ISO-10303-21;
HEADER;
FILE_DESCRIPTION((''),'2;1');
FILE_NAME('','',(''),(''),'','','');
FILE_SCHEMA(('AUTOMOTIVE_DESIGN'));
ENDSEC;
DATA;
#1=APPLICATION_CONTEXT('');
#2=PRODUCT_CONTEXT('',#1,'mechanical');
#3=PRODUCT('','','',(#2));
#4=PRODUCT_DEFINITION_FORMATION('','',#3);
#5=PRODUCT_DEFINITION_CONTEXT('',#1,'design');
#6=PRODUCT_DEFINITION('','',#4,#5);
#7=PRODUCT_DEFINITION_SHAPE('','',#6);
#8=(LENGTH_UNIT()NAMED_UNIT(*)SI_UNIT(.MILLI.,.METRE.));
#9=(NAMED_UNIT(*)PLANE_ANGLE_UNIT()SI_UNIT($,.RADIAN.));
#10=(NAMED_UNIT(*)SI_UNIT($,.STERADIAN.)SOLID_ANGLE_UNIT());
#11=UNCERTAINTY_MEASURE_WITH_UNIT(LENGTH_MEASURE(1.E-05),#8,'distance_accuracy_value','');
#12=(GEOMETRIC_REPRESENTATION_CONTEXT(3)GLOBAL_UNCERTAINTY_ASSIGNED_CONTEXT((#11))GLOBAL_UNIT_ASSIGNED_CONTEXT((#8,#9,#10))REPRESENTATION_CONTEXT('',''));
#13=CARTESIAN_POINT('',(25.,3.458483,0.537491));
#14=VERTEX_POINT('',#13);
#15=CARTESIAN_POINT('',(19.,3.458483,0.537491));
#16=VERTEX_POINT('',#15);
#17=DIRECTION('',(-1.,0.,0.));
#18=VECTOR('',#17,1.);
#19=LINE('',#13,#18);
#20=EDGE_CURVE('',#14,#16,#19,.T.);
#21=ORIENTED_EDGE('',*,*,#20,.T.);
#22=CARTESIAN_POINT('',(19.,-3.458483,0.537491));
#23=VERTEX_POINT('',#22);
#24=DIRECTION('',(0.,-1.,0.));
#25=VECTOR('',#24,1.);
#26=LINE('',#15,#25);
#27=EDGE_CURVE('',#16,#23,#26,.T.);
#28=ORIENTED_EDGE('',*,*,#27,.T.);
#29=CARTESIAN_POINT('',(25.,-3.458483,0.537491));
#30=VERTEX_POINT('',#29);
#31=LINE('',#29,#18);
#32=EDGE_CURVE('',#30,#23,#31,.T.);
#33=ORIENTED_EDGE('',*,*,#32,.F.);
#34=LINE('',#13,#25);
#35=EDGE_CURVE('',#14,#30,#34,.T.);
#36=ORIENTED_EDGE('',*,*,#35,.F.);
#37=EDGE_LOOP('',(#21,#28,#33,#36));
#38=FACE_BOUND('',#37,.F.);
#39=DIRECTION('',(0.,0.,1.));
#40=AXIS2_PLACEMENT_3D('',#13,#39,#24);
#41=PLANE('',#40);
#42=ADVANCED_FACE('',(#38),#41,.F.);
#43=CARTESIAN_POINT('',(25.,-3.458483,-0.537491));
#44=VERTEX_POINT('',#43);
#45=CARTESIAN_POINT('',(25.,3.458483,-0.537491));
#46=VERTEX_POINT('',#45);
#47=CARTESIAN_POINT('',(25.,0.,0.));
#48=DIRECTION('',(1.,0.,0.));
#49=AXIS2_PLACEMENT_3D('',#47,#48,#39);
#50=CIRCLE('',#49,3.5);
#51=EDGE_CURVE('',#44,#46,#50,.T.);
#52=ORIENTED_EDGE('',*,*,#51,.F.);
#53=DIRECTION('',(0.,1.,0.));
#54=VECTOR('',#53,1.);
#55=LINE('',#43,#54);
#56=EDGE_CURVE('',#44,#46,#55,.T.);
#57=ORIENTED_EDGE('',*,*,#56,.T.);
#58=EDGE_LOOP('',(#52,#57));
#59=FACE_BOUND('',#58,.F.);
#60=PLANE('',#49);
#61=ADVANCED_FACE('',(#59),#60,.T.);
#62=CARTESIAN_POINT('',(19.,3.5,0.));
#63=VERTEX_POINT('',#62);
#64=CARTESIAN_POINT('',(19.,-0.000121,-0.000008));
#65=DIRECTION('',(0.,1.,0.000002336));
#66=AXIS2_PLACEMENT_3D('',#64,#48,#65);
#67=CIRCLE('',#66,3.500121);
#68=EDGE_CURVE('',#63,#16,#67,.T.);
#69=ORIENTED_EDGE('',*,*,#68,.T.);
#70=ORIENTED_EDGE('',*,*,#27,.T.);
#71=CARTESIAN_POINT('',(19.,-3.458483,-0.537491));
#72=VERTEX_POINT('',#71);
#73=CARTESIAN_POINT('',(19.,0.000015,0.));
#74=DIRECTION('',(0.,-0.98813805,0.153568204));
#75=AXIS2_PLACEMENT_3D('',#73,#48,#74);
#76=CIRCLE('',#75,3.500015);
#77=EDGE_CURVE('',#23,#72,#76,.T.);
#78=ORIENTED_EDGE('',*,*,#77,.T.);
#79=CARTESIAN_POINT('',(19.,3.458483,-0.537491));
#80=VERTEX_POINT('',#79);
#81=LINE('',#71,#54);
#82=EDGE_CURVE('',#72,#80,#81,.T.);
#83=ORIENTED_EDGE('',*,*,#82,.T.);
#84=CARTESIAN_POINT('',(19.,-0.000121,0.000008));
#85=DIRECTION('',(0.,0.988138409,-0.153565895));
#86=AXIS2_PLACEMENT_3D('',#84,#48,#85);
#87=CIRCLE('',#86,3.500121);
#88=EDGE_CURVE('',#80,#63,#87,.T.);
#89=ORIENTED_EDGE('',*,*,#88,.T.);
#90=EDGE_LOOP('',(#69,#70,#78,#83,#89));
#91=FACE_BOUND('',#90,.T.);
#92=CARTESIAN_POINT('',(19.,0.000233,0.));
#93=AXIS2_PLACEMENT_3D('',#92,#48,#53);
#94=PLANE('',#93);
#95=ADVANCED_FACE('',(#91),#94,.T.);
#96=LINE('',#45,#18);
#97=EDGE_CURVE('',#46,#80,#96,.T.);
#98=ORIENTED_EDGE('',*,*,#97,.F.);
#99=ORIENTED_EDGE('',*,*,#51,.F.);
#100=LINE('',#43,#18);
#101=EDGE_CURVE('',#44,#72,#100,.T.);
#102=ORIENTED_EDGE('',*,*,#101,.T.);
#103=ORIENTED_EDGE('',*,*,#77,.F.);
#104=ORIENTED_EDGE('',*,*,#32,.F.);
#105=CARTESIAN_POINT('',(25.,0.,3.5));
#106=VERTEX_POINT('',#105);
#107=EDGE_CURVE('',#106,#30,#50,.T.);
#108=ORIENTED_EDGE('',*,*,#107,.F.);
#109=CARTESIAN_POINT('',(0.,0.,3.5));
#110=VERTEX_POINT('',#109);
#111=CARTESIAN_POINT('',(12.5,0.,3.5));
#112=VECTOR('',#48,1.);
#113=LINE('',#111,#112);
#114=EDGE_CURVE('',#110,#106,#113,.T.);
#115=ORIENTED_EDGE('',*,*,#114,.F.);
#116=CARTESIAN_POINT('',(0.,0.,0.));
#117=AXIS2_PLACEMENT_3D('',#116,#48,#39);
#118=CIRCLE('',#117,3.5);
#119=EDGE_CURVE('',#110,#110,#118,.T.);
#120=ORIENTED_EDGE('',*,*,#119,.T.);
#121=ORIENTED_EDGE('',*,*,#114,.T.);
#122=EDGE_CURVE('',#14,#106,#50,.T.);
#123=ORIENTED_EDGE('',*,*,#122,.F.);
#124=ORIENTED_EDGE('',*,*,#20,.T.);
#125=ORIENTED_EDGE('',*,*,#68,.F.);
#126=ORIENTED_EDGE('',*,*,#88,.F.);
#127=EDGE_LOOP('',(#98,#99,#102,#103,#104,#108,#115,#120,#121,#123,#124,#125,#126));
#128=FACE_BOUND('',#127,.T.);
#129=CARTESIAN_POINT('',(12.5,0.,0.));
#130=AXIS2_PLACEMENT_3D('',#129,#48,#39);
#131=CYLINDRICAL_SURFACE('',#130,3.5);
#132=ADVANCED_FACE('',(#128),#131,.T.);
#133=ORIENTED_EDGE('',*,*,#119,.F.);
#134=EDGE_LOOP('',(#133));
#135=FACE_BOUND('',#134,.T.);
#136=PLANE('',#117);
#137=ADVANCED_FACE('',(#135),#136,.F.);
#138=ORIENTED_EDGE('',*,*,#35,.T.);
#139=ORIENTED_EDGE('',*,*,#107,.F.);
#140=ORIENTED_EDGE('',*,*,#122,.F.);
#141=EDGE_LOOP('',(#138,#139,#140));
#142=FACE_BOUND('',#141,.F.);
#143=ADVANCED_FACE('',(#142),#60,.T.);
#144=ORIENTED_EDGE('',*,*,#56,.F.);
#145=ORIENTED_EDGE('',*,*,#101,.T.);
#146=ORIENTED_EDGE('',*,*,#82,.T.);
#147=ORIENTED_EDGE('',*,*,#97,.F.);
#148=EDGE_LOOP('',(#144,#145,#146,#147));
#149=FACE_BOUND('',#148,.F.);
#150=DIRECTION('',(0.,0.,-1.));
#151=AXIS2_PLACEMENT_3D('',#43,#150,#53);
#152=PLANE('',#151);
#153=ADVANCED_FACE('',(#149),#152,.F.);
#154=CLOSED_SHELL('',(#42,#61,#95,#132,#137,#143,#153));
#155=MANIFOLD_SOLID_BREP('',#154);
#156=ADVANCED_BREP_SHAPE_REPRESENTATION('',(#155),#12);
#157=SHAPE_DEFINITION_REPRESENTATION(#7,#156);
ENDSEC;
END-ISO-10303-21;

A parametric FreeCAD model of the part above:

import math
import FreeCAD as App
import Part
import Sketcher

V = App.Vector

doc = App.newDocument("Part")
body = doc.addObject("PartDesign::Body", "Body")

# Sketch on XZ plane
sketch1 = body.newObject("Sketcher::SketchObject", "Sketch")
sketch1.AttachmentSupport = (doc.getObject("XZ_Plane"), [""])
sketch1.MapMode = "FlatFace"
sketch1.addGeometry(Part.LineSegment(V(0, 3.5, 0), V(0, 0, 0)), False)
sketch1.addGeometry(Part.LineSegment(V(0, 0, 0), V(25, 0, 0)), False)
sketch1.addGeometry(Part.LineSegment(V(25, 0, 0), V(25, 3.5, 0)), False)
sketch1.addGeometry(Part.LineSegment(V(25, 3.5, 0), V(0, 3.5, 0)), False)
sketch1.addConstraint(Sketcher.Constraint("Coincident", 0, 2, 1, 1))
sketch1.addConstraint(Sketcher.Constraint("Coincident", 1, 2, 2, 1))
sketch1.addConstraint(Sketcher.Constraint("Coincident", 2, 2, 3, 1))
sketch1.addConstraint(Sketcher.Constraint("Coincident", 3, 2, 0, 1))
sketch1.addConstraint(Sketcher.Constraint("Vertical", 0))
sketch1.addConstraint(Sketcher.Constraint("Horizontal", 1))
sketch1.addConstraint(Sketcher.Constraint("Vertical", 2))
sketch1.addConstraint(Sketcher.Constraint("Horizontal", 3))
sketch1.addConstraint(Sketcher.Constraint("Coincident", 0, 2, -1, 1))
sketch1.addConstraint(Sketcher.Constraint("DistanceX", 1, 1, 1, 2, 25.0))
sketch1.addConstraint(Sketcher.Constraint("DistanceY", 0, 2, 0, 1, 3.5))
revolution = body.newObject("PartDesign::Revolution", "Revolution")
revolution.Profile = sketch1
revolution.ReferenceAxis = (sketch1, ["H_Axis"])
revolution.Angle = 360

# Sketch on YZ plane
sketch2 = body.newObject("Sketcher::SketchObject", "Sketch001")
sketch2.AttachmentSupport = (doc.getObject("YZ_Plane"), [""])
sketch2.MapMode = "FlatFace"
sketch2.AttachmentOffset = App.Placement(V(0, 0, 25), App.Rotation())
sketch2.addGeometry(Part.LineSegment(V(-3.5, -0.5, 0), V(3.5, -0.5, 0)), False)
sketch2.addGeometry(Part.ArcOfCircle(Part.Circle(V(0, 0, 0), V(0, 0, 1), 3.5), math.radians(-8.83), math.radians(0)), False)
sketch2.addGeometry(Part.ArcOfCircle(Part.Circle(V(0, 0, 0), V(0, 0, 1), 3.5), math.radians(0), math.radians(8.83)), False)
sketch2.addGeometry(Part.LineSegment(V(3.5, 0.5, 0), V(-3.5, 0.5, 0)), False)
sketch2.addGeometry(Part.ArcOfCircle(Part.Circle(V(0, 0, 0), V(0, 0, 1), 3.5), math.radians(171.17), math.radians(188.83)), False)
sketch2.addConstraint(Sketcher.Constraint("Coincident", 0, 2, 1, 1))
sketch2.addConstraint(Sketcher.Constraint("Coincident", 1, 2, 2, 1))
sketch2.addConstraint(Sketcher.Constraint("Coincident", 2, 2, 3, 1))
sketch2.addConstraint(Sketcher.Constraint("Coincident", 3, 2, 4, 1))
sketch2.addConstraint(Sketcher.Constraint("Coincident", 4, 2, 0, 1))
sketch2.addConstraint(Sketcher.Constraint("Horizontal", 0))
sketch2.addConstraint(Sketcher.Constraint("Horizontal", 3))
sketch2.addConstraint(Sketcher.Constraint("Equal", 1, 2))
sketch2.addConstraint(Sketcher.Constraint("Symmetric", 0, 2, 3, 2, -1, 1))
sketch2.addConstraint(Sketcher.Constraint("PointOnObject", 4, 3, -1))
sketch2.addConstraint(Sketcher.Constraint("PointOnObject", 1, 2, -1))
sketch2.addConstraint(Sketcher.Constraint("Vertical", 0, 2, 2, 2))
sketch2.addConstraint(Sketcher.Constraint("DistanceX", -1, 1, 1, 2, 3.5))
sketch2.addConstraint(Sketcher.Constraint("Radius", 1, 3.500121))
sketch2.addConstraint(Sketcher.Constraint("Radius", 4, 3.500015))
sketch2.addConstraint(Sketcher.Constraint("DistanceY", 0, 2, 1, 3, 0.537499))
sketch2.addConstraint(Sketcher.Constraint("DistanceY", 0, 2, -1, 1, 0.537491))
pocket1 = body.newObject("PartDesign::Pocket", "Pocket")
pocket1.Profile = sketch2
pocket1.Length = 6

doc.recompute()
